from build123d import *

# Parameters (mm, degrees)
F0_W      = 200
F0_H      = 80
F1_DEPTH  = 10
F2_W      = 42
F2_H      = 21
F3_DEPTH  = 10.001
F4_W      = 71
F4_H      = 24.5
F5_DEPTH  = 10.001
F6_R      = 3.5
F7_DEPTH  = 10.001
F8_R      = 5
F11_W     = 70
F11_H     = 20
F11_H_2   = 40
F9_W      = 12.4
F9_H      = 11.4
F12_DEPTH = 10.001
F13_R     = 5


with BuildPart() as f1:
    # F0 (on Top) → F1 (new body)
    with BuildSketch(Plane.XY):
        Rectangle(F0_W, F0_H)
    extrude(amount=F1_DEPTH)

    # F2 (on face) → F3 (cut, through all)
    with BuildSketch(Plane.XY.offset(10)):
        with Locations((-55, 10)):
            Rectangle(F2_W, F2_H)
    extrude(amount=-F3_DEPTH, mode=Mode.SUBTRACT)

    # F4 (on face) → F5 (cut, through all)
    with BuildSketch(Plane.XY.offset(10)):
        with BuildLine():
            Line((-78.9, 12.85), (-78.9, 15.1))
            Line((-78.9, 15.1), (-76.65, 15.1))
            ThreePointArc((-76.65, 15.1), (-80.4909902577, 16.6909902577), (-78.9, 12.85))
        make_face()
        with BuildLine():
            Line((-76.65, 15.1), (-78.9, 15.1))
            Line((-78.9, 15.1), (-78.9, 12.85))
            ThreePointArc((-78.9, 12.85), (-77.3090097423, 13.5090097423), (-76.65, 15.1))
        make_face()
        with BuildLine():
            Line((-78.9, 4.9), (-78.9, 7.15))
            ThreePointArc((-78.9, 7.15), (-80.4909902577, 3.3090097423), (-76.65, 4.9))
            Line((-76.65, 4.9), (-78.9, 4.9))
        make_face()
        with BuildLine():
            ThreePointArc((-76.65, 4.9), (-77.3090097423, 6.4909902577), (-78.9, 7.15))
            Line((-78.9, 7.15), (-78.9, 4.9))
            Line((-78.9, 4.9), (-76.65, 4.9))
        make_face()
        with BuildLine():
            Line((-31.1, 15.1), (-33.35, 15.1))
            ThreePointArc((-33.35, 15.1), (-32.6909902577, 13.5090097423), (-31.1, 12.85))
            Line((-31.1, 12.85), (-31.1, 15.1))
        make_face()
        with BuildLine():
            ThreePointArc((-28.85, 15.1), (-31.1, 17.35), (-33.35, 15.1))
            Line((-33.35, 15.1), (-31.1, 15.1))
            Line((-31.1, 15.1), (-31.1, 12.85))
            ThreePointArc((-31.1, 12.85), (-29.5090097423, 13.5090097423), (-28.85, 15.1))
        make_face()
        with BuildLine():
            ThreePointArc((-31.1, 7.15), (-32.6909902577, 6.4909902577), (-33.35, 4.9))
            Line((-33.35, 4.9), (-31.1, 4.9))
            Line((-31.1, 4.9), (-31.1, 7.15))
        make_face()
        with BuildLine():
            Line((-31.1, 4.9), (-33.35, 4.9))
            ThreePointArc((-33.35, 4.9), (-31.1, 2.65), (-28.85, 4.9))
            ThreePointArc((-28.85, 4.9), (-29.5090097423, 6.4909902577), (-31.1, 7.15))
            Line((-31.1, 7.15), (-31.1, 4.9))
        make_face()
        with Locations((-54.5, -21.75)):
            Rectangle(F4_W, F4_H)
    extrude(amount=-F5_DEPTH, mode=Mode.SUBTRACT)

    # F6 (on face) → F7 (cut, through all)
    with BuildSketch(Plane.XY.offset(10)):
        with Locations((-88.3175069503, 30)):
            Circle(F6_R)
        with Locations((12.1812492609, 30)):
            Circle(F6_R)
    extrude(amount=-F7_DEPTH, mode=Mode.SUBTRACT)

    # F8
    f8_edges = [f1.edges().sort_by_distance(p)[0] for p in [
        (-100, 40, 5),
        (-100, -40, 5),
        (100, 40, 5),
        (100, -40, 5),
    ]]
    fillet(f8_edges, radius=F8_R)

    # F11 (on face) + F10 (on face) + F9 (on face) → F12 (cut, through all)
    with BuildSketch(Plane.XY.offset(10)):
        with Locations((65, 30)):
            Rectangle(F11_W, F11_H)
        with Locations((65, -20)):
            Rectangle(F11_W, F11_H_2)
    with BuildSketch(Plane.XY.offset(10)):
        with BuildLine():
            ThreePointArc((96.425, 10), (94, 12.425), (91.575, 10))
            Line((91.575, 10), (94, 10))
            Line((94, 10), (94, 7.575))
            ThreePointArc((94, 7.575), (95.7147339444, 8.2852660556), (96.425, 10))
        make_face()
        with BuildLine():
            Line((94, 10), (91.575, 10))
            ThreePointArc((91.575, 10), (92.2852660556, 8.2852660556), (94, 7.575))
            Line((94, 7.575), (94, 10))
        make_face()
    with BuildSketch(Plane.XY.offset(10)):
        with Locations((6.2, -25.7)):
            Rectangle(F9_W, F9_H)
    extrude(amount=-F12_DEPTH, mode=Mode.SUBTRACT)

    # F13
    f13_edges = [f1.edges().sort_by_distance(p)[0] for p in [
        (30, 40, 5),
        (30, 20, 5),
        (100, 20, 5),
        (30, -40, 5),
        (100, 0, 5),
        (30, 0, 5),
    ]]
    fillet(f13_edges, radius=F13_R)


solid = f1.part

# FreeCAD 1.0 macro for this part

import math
import FreeCAD as App
import Part
import Sketcher

V = App.Vector


def edges_at(feature, points):
    """Names of the edges that pass closest to the given points."""
    edges = feature.Shape.Edges
    near = lambda p: min(range(len(edges)), key=lambda i: edges[i].distToShape(Part.Vertex(*p))[0])
    return sorted({f"Edge{near(p) + 1}" for p in points})

doc = App.newDocument("Part")
body = doc.addObject("PartDesign::Body", "Body")

# Sketch on XY plane
sketch1 = body.newObject("Sketcher::SketchObject", "Sketch")
sketch1.AttachmentSupport = (doc.getObject("XY_Plane"), [""])
sketch1.MapMode = "FlatFace"
sketch1.addGeometry([
    Part.LineSegment(V(-100, 40, 0), V(-100, -40, 0)),
    Part.LineSegment(V(-100, -40, 0), V(100, -40, 0)),
    Part.LineSegment(V(100, -40, 0), V(100, 40, 0)),
    Part.LineSegment(V(100, 40, 0), V(-100, 40, 0)),
], False)
sketch1.addConstraint([
    Sketcher.Constraint("Coincident", 0, 2, 1, 1),
    Sketcher.Constraint("Coincident", 1, 2, 2, 1),
    Sketcher.Constraint("Coincident", 2, 2, 3, 1),
    Sketcher.Constraint("Coincident", 3, 2, 0, 1),
    Sketcher.Constraint("Vertical", 0),
    Sketcher.Constraint("Horizontal", 1),
    Sketcher.Constraint("Vertical", 2),
    Sketcher.Constraint("Horizontal", 3),
    Sketcher.Constraint("Symmetric", 0, 2, 2, 2, -1, 1),
    Sketcher.Constraint("DistanceX", 1, 1, 1, 2, 200.0),
    Sketcher.Constraint("DistanceY", 0, 2, 0, 1, 80.0),
])
pad1 = body.newObject("PartDesign::Pad", "Pad")
pad1.Profile = sketch1
pad1.Length = 10

# Sketch on XY plane
sketch2 = body.newObject("Sketcher::SketchObject", "Sketch001")
sketch2.AttachmentSupport = (doc.getObject("XY_Plane"), [""])
sketch2.MapMode = "FlatFace"
sketch2.AttachmentOffset = App.Placement(V(0, 0, 10), App.Rotation())
sketch2.addGeometry([
    Part.LineSegment(V(-76, 20.5, 0), V(-76, -0.5, 0)),
    Part.LineSegment(V(-76, -0.5, 0), V(-34, -0.5, 0)),
    Part.LineSegment(V(-34, -0.5, 0), V(-34, 20.5, 0)),
    Part.LineSegment(V(-34, 20.5, 0), V(-76, 20.5, 0)),
], False)
sketch2.addConstraint([
    Sketcher.Constraint("Coincident", 0, 2, 1, 1),
    Sketcher.Constraint("Coincident", 1, 2, 2, 1),
    Sketcher.Constraint("Coincident", 2, 2, 3, 1),
    Sketcher.Constraint("Coincident", 3, 2, 0, 1),
    Sketcher.Constraint("Vertical", 0),
    Sketcher.Constraint("Horizontal", 1),
    Sketcher.Constraint("Vertical", 2),
    Sketcher.Constraint("Horizontal", 3),
    Sketcher.Constraint("DistanceX", 1, 1, 1, 2, 42.0),
    Sketcher.Constraint("DistanceY", 0, 2, 0, 1, 21.0),
    Sketcher.Constraint("DistanceX", 0, 2, -1, 1, 76.0),
    Sketcher.Constraint("DistanceY", 0, 2, -1, 1, 0.5),
])
pocket1 = body.newObject("PartDesign::Pocket", "Pocket")
pocket1.Profile = sketch2
pocket1.Type = "ThroughAll"

# Sketch on XY plane
sketch3 = body.newObject("Sketcher::SketchObject", "Sketch002")
sketch3.AttachmentSupport = (doc.getObject("XY_Plane"), [""])
sketch3.MapMode = "FlatFace"
sketch3.AttachmentOffset = App.Placement(V(0, 0, 10), App.Rotation())
sketch3.addGeometry([
    Part.ArcOfCircle(Part.Circle(V(-78.9, 15.1, 0), V(0, 0, 1), 2.25), math.radians(0), math.radians(270)),  # 0
    Part.ArcOfCircle(Part.Circle(V(-78.9, 15.1, 0), V(0, 0, 1), 2.25), math.radians(-90), math.radians(0)),  # 1
    Part.ArcOfCircle(Part.Circle(V(-78.9, 4.9, 0), V(0, 0, 1), 2.25), math.radians(90), math.radians(360)),  # 2
    Part.ArcOfCircle(Part.Circle(V(-78.9, 4.9, 0), V(0, 0, 1), 2.25), math.radians(0), math.radians(90)),  # 3
    Part.ArcOfCircle(Part.Circle(V(-31.1, 15.1, 0), V(0, 0, 1), 2.25), math.radians(180), math.radians(270)),  # 4
    Part.ArcOfCircle(Part.Circle(V(-31.1, 15.1, 0), V(0, 0, 1), 2.25), math.radians(-90), math.radians(0)),  # 5
    Part.ArcOfCircle(Part.Circle(V(-31.1, 15.1, 0), V(0, 0, 1), 2.25), math.radians(0), math.radians(180)),  # 6
    Part.ArcOfCircle(Part.Circle(V(-31.1, 4.9, 0), V(0, 0, 1), 2.25), math.radians(90), math.radians(180)),  # 7
    Part.ArcOfCircle(Part.Circle(V(-31.1, 4.9, 0), V(0, 0, 1), 2.25), math.radians(180), math.radians(360)),  # 8
    Part.ArcOfCircle(Part.Circle(V(-31.1, 4.9, 0), V(0, 0, 1), 2.25), math.radians(0), math.radians(90)),  # 9
    Part.LineSegment(V(-90, -9.5, 0), V(-90, -34, 0)),  # 10
    Part.LineSegment(V(-90, -34, 0), V(-19, -34, 0)),  # 11
    Part.LineSegment(V(-19, -34, 0), V(-19, -9.5, 0)),  # 12
    Part.LineSegment(V(-19, -9.5, 0), V(-90, -9.5, 0)),  # 13
], False)
sketch3.addConstraint([
    Sketcher.Constraint("Tangent", 0, 1, 1, 2),
    Sketcher.Constraint("Coincident", 1, 1, 0, 2),
    Sketcher.Constraint("Tangent", 2, 1, 3, 2),
    Sketcher.Constraint("Coincident", 3, 1, 2, 2),
    Sketcher.Constraint("Tangent", 4, 2, 5, 1),
    Sketcher.Constraint("Tangent", 5, 2, 6, 1),
    Sketcher.Constraint("Tangent", 6, 2, 4, 1),
    Sketcher.Constraint("Tangent", 7, 2, 8, 1),
    Sketcher.Constraint("Tangent", 8, 2, 9, 1),
    Sketcher.Constraint("Tangent", 9, 2, 7, 1),
    Sketcher.Constraint("Coincident", 10, 2, 11, 1),
    Sketcher.Constraint("Coincident", 11, 2, 12, 1),
    Sketcher.Constraint("Coincident", 12, 2, 13, 1),
    Sketcher.Constraint("Coincident", 13, 2, 10, 1),
    Sketcher.Constraint("Vertical", 10),
    Sketcher.Constraint("Horizontal", 11),
    Sketcher.Constraint("Vertical", 12),
    Sketcher.Constraint("Horizontal", 13),
    Sketcher.Constraint("Equal", 1, 2),
    Sketcher.Constraint("Equal", 3, 4),
    Sketcher.Constraint("Equal", 6, 7),
    Sketcher.Constraint("Horizontal", 1, 3, 4, 3),
    Sketcher.Constraint("Horizontal", 3, 3, 7, 3),
    Sketcher.Constraint("Horizontal", 6, 3, 0, 1),
    Sketcher.Constraint("Horizontal", 9, 3, 3, 1),
    Sketcher.Constraint("Horizontal", 0, 1, 5, 2),
    Sketcher.Constraint("Horizontal", 5, 2, 6, 2),
    Sketcher.Constraint("Horizontal", 3, 1, 7, 2),
    Sketcher.Constraint("Horizontal", 7, 2, 8, 2),
    Sketcher.Constraint("Vertical", 1, 3, 2, 3),
    Sketcher.Constraint("Vertical", 6, 3, 7, 3),
    Sketcher.Constraint("Vertical", 3, 3, 1, 1),
    Sketcher.Constraint("Vertical", 1, 1, 2, 1),
    Sketcher.Constraint("Vertical", 9, 3, 4, 2),
    Sketcher.Constraint("Vertical", 4, 2, 9, 2),
    Sketcher.Constraint("DistanceX", 11, 1, 11, 2, 71.0),
    Sketcher.Constraint("Radius", 0, 2.25),
    Sketcher.Constraint("DistanceY", 10, 2, 10, 1, 24.5),
    Sketcher.Constraint("DistanceX", 10, 2, -1, 1, 90.0),
    Sketcher.Constraint("DistanceY", 10, 2, -1, 1, 34.0),
    Sketcher.Constraint("DistanceX", 0, 3, -1, 1, 78.9),
    Sketcher.Constraint("DistanceY", -1, 1, 0, 3, 15.1),
    Sketcher.Constraint("DistanceY", -1, 1, 2, 3, 4.9),
    Sketcher.Constraint("DistanceX", 4, 3, -1, 1, 31.1),
])
pocket2 = body.newObject("PartDesign::Pocket", "Pocket001")
pocket2.Profile = sketch3
pocket2.Type = "ThroughAll"

# Sketch on XY plane
sketch4 = body.newObject("Sketcher::SketchObject", "Sketch003")
sketch4.AttachmentSupport = (doc.getObject("XY_Plane"), [""])
sketch4.MapMode = "FlatFace"
sketch4.AttachmentOffset = App.Placement(V(0, 0, 10), App.Rotation())
sketch4.addGeometry([
    Part.Circle(V(-88.317507, 30, 0), V(0, 0, 1), 3.5),
    Part.Circle(V(12.181249, 30, 0), V(0, 0, 1), 3.5),
], False)
sketch4.addConstraint([
    Sketcher.Constraint("Equal", 0, 1),
    Sketcher.Constraint("Horizontal", 0, 3, 1, 3),
    Sketcher.Constraint("Diameter", 0, 7.0),
    Sketcher.Constraint("DistanceY", -1, 1, 0, 3, 30.0),
    Sketcher.Constraint("DistanceX", -1, 1, 1, 3, 12.181249),
    Sketcher.Constraint("DistanceX", 0, 3, -1, 1, 88.317507),
])
pocket3 = body.newObject("PartDesign::Pocket", "Pocket002")
pocket3.Profile = sketch4
pocket3.Type = "ThroughAll"
doc.recompute()

fillet = body.newObject("PartDesign::Fillet", "Fillet")
fillet.Base = (pocket3, edges_at(pocket3, [
    (-100, 40, 5),
    (-100, -40, 5),
    (100, 40, 5),
    (100, -40, 5),
]))
fillet.Radius = 5

# Sketch on XY plane
sketch5 = body.newObject("Sketcher::SketchObject", "Sketch004")
sketch5.AttachmentSupport = (doc.getObject("XY_Plane"), [""])
sketch5.MapMode = "FlatFace"
sketch5.AttachmentOffset = App.Placement(V(0, 0, 10), App.Rotation())
sketch5.addGeometry([
    Part.LineSegment(V(30, 40, 0), V(30, 20, 0)),  # 0
    Part.LineSegment(V(30, 20, 0), V(100, 20, 0)),  # 1
    Part.LineSegment(V(100, 20, 0), V(100, 40, 0)),  # 2
    Part.LineSegment(V(100, 40, 0), V(30, 40, 0)),  # 3
    Part.LineSegment(V(30, 0, 0), V(30, -40, 0)),  # 4
    Part.LineSegment(V(30, -40, 0), V(100, -40, 0)),  # 5
    Part.LineSegment(V(100, -40, 0), V(100, 0, 0)),  # 6
    Part.LineSegment(V(100, 0, 0), V(30, 0, 0)),  # 7
    Part.ArcOfCircle(Part.Circle(V(94, 10, 0), V(0, 0, 1), 2.425), math.radians(0), math.radians(180)),  # 8
    Part.ArcOfCircle(Part.Circle(V(94, 10, 0), V(0, 0, 1), 2.425), math.radians(180), math.radians(270)),  # 9
    Part.ArcOfCircle(Part.Circle(V(94, 10, 0), V(0, 0, 1), 2.425), math.radians(-90), math.radians(0)),  # 10
    Part.LineSegment(V(0, -20, 0), V(0, -31.4, 0)),  # 11
    Part.LineSegment(V(0, -31.4, 0), V(12.4, -31.4, 0)),  # 12
    Part.LineSegment(V(12.4, -31.4, 0), V(12.4, -20, 0)),  # 13
    Part.LineSegment(V(12.4, -20, 0), V(0, -20, 0)),  # 14
], False)
sketch5.addConstraint([
    Sketcher.Constraint("Coincident", 0, 2, 1, 1),
    Sketcher.Constraint("Coincident", 1, 2, 2, 1),
    Sketcher.Constraint("Coincident", 2, 2, 3, 1),
    Sketcher.Constraint("Coincident", 3, 2, 0, 1),
    Sketcher.Constraint("Coincident", 4, 2, 5, 1),
    Sketcher.Constraint("Coincident", 5, 2, 6, 1),
    Sketcher.Constraint("Coincident", 6, 2, 7, 1),
    Sketcher.Constraint("Coincident", 7, 2, 4, 1),
    Sketcher.Constraint("Tangent", 8, 2, 9, 1),
    Sketcher.Constraint("Tangent", 9, 2, 10, 1),
    Sketcher.Constraint("Tangent", 10, 2, 8, 1),
    Sketcher.Constraint("Coincident", 11, 2, 12, 1),
    Sketcher.Constraint("Coincident", 12, 2, 13, 1),
    Sketcher.Constraint("Coincident", 13, 2, 14, 1),
    Sketcher.Constraint("Coincident", 14, 2, 11, 1),
    Sketcher.Constraint("Vertical", 0),
    Sketcher.Constraint("Horizontal", 1),
    Sketcher.Constraint("Vertical", 2),
    Sketcher.Constraint("Horizontal", 3),
    Sketcher.Constraint("Vertical", 4),
    Sketcher.Constraint("Horizontal", 5),
    Sketcher.Constraint("Vertical", 6),
    Sketcher.Constraint("Horizontal", 7),
    Sketcher.Constraint("Vertical", 11),
    Sketcher.Constraint("Horizontal", 12),
    Sketcher.Constraint("Vertical", 13),
    Sketcher.Constraint("Horizontal", 14),
    Sketcher.Constraint("Symmetric", 3, 2, 4, 2, -1),
    Sketcher.Constraint("PointOnObject", 6, 2, -1),
    Sketcher.Constraint("PointOnObject", 11, 2, -2),
    Sketcher.Constraint("Horizontal", 10, 3, 8, 2),
    Sketcher.Constraint("Horizontal", 8, 2, 10, 2),
    Sketcher.Constraint("Vertical", 2, 2, 5, 2),
    Sketcher.Constraint("Vertical", 10, 3, 9, 2),
    Sketcher.Constraint("DistanceX", 1, 1, 1, 2, 70.0),
    Sketcher.Constraint("DistanceY", 0, 2, 0, 1, 20.0),
    Sketcher.Constraint("DistanceY", 4, 2, 4, 1, 40.0),
    Sketcher.Constraint("DistanceX", 12, 1, 12, 2, 12.4),
    Sketcher.Constraint("DistanceY", 11, 2, 11, 1, 11.4),
    Sketcher.Constraint("DistanceX", -1, 1, 8, 3, 94.0),
    Sketcher.Constraint("DistanceY", -1, 1, 8, 3, 10.0),
    Sketcher.Constraint("DistanceX", -1, 1, 0, 2, 30.0),
    Sketcher.Constraint("DistanceY", 13, 2, -1, 1, 20.0),
    Sketcher.Constraint("Radius", 8, 2.425),
])
pocket4 = body.newObject("PartDesign::Pocket", "Pocket003")
pocket4.Profile = sketch5
pocket4.Type = "ThroughAll"
doc.recompute()

fillet2 = body.newObject("PartDesign::Fillet", "Fillet001")
fillet2.Base = (pocket4, edges_at(pocket4, [
    (30, 40, 5),
    (30, 20, 5),
    (100, 20, 5),
    (30, -40, 5),
    (100, 0, 5),
    (30, 0, 5),
]))
fillet2.Radius = 5

doc.recompute()
